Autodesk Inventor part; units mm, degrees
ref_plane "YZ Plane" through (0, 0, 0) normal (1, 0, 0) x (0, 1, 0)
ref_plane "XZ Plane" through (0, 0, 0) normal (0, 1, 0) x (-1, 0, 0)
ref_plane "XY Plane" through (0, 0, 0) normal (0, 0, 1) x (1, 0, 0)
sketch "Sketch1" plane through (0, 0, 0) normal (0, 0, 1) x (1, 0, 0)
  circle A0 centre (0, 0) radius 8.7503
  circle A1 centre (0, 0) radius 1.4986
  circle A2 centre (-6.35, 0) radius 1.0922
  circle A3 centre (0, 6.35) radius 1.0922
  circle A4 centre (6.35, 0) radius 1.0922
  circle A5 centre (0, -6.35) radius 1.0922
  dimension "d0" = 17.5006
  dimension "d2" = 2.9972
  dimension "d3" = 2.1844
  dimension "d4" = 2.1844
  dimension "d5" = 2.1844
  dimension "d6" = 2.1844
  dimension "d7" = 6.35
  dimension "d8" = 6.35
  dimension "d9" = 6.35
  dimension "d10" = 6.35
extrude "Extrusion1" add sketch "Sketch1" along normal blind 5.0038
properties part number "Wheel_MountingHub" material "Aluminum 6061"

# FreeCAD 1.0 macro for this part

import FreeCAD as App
import Part
import Sketcher

V = App.Vector
Q = App.Units.Quantity

doc = App.newDocument("Part")
body = doc.addObject("PartDesign::Body", "Body")

# Sketch on XY plane
sketch1 = body.newObject("Sketcher::SketchObject", "Sketch")
sketch1.AttachmentSupport = (doc.getObject("XY_Plane"), [""])
sketch1.MapMode = "FlatFace"
sketch1.addGeometry(Part.Circle(V(0, 0, 0), V(0, 0, 1), 8.8), False)
sketch1.addGeometry(Part.Circle(V(0, -6.3, 0), V(0, 0, 1), 1.1), False)
sketch1.addGeometry(Part.Circle(V(-6.3, 0, 0), V(0, 0, 1), 1.1), False)
sketch1.addGeometry(Part.Circle(V(0, 0, 0), V(0, 0, 1), 1.5), False)
sketch1.addGeometry(Part.Circle(V(6.3, 0, 0), V(0, 0, 1), 1.1), False)
sketch1.addGeometry(Part.Circle(V(0, 6.3, 0), V(0, 0, 1), 1.1), False)
sketch1.addConstraint(Sketcher.Constraint("Coincident", 0, 3, -1, 1))
sketch1.addConstraint(Sketcher.Constraint("Coincident", 3, 3, -1, 1))
sketch1.addConstraint(Sketcher.Constraint("Equal", 1, 2))
sketch1.addConstraint(Sketcher.Constraint("Equal", 2, 4))
sketch1.addConstraint(Sketcher.Constraint("Equal", 4, 5))
sketch1.addConstraint(Sketcher.Constraint("Symmetric", 2, 3, 4, 3, -1, 1))
sketch1.addConstraint(Sketcher.Constraint("Symmetric", 1, 3, 5, 3, -1, 1))
sketch1.addConstraint(Sketcher.Constraint("PointOnObject", 1, 3, -2))
sketch1.addConstraint(Sketcher.Constraint("PointOnObject", 2, 3, -1))
sketch1.addConstraint(Sketcher.Constraint("Diameter", 0, Q("0.689 in")))
sketch1.addConstraint(Sketcher.Constraint("Diameter", 1, Q("0.086 in")))
sketch1.addConstraint(Sketcher.Constraint("Diameter", 3, Q("0.118 in")))
sketch1.addConstraint(Sketcher.Constraint("DistanceY", 1, 3, -1, 1, Q("0.25 in")))
sketch1.addConstraint(Sketcher.Constraint("DistanceX", 2, 3, -1, 1, Q("0.25 in")))
pad1 = body.newObject("PartDesign::Pad", "Pad")
pad1.Profile = sketch1
pad1.Length = Q("0.197 in")

doc.recompute()
